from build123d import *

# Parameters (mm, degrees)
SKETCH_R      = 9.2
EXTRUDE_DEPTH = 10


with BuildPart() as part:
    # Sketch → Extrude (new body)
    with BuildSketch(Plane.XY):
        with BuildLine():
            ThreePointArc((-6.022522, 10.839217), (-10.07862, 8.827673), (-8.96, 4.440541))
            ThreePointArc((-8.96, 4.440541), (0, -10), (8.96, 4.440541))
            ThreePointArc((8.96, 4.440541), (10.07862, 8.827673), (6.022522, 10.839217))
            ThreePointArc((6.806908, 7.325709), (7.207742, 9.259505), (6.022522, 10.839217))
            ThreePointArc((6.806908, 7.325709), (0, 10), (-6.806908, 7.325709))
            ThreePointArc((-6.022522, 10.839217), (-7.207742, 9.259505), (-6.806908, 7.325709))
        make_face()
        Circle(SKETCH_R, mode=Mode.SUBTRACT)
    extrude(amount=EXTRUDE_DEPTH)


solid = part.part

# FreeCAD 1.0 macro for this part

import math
import FreeCAD as App
import Part
import Sketcher

V = App.Vector

doc = App.newDocument("Part")
params = doc.addObject("Spreadsheet::Sheet", "Params")
for row, (alias, value) in enumerate([
    ("sketch1_radius", "10 mm"),
    ("sketch1_diameter", "18.4 mm"),
    ("sketch1_radius2", "3.6 mm"),
    ("sketch1_radius3", "2.400001 mm"),
    ("pad1_length", "10 mm"),
], start=1):
    params.set(f"A{row}", alias)
    params.set(f"B{row}", "=" + value)
    params.setAlias(f"B{row}", alias)

body = doc.addObject("PartDesign::Body", "Body")

# Sketch on XY plane
sketch1 = doc.addObject("Sketcher::SketchObject", "Sketch")
body.addObject(sketch1)
sketch1.AttachmentSupport = (doc.XY_Plane, [""])
sketch1.MapMode = "FlatFace"
sketch1.addGeometry([
    Part.ArcOfCircle(Part.Circle(V(-6.8, 7.3, 0), V(0, 0, 1), 3.6), math.radians(77), math.radians(233)),  # 0
    Part.ArcOfCircle(Part.Circle(V(0, 0, 0), V(0, 0, 1), 10), math.radians(154), math.radians(386)),  # 1
    Part.ArcOfCircle(Part.Circle(V(6.8, 7.3, 0), V(0, 0, 1), 3.6), math.radians(-53), math.radians(103)),  # 2
    Part.ArcOfCircle(Part.Circle(V(4.9, 8.7, 0), V(0, 0, 1), 2.4), math.radians(-36), math.radians(61)),  # 3
    Part.ArcOfCircle(Part.Circle(V(0, 0, 0), V(0, 0, 1), 10), math.radians(47), math.radians(133)),  # 4
    Part.ArcOfCircle(Part.Circle(V(-4.9, 8.7, 0), V(0, 0, 1), 2.4), math.radians(119), math.radians(216)),  # 5
    Part.Circle(V(0, 0, 0), V(0, 0, 1), 9.2),  # 6
], False)
sketch1.addConstraint([
    Sketcher.Constraint("Coincident", 0, 2, 1, 1),
    Sketcher.Constraint("Coincident", 1, 2, 2, 1),
    Sketcher.Constraint("Coincident", 2, 2, 3, 2),
    Sketcher.Constraint("Coincident", 3, 1, 4, 1),
    Sketcher.Constraint("Coincident", 4, 2, 5, 2),
    Sketcher.Constraint("Coincident", 5, 1, 0, 1),
    Sketcher.Constraint("Coincident", 1, 3, -1, 1),
    Sketcher.Constraint("Coincident", 4, 3, -1, 1),
    Sketcher.Constraint("Coincident", 6, 3, -1, 1),
    Sketcher.Constraint("Coincident", 3, 1, 2, 3),
    Sketcher.Constraint("Coincident", 4, 2, 0, 3),
    Sketcher.Constraint("Equal", 0, 2),
    Sketcher.Constraint("Equal", 1, 4),
    Sketcher.Constraint("Equal", 3, 5),
    Sketcher.Constraint("Symmetric", 3, 3, 5, 3, -2),
    Sketcher.Constraint("Radius", 1, 10.0),
    Sketcher.Constraint("Diameter", 6, 18.4),
    Sketcher.Constraint("Radius", 0, 3.6),
    Sketcher.Constraint("Radius", 3, 2.400001),
    Sketcher.Constraint("DistanceX", 0, 2, -1, 1, 8.96),
    Sketcher.Constraint("DistanceY", -1, 1, 3, 3, 8.736581),
])
sketch1.setExpression("Constraints[15]", "Params.sketch1_radius")
sketch1.setExpression("Constraints[16]", "Params.sketch1_diameter")
sketch1.setExpression("Constraints[17]", "Params.sketch1_radius2")
sketch1.setExpression("Constraints[18]", "Params.sketch1_radius3")
pad1 = doc.addObject("PartDesign::Pad", "Pad")
body.addObject(pad1)
pad1.Profile = sketch1
pad1.setExpression("Length", "Params.pad1_length")

doc.recompute()
